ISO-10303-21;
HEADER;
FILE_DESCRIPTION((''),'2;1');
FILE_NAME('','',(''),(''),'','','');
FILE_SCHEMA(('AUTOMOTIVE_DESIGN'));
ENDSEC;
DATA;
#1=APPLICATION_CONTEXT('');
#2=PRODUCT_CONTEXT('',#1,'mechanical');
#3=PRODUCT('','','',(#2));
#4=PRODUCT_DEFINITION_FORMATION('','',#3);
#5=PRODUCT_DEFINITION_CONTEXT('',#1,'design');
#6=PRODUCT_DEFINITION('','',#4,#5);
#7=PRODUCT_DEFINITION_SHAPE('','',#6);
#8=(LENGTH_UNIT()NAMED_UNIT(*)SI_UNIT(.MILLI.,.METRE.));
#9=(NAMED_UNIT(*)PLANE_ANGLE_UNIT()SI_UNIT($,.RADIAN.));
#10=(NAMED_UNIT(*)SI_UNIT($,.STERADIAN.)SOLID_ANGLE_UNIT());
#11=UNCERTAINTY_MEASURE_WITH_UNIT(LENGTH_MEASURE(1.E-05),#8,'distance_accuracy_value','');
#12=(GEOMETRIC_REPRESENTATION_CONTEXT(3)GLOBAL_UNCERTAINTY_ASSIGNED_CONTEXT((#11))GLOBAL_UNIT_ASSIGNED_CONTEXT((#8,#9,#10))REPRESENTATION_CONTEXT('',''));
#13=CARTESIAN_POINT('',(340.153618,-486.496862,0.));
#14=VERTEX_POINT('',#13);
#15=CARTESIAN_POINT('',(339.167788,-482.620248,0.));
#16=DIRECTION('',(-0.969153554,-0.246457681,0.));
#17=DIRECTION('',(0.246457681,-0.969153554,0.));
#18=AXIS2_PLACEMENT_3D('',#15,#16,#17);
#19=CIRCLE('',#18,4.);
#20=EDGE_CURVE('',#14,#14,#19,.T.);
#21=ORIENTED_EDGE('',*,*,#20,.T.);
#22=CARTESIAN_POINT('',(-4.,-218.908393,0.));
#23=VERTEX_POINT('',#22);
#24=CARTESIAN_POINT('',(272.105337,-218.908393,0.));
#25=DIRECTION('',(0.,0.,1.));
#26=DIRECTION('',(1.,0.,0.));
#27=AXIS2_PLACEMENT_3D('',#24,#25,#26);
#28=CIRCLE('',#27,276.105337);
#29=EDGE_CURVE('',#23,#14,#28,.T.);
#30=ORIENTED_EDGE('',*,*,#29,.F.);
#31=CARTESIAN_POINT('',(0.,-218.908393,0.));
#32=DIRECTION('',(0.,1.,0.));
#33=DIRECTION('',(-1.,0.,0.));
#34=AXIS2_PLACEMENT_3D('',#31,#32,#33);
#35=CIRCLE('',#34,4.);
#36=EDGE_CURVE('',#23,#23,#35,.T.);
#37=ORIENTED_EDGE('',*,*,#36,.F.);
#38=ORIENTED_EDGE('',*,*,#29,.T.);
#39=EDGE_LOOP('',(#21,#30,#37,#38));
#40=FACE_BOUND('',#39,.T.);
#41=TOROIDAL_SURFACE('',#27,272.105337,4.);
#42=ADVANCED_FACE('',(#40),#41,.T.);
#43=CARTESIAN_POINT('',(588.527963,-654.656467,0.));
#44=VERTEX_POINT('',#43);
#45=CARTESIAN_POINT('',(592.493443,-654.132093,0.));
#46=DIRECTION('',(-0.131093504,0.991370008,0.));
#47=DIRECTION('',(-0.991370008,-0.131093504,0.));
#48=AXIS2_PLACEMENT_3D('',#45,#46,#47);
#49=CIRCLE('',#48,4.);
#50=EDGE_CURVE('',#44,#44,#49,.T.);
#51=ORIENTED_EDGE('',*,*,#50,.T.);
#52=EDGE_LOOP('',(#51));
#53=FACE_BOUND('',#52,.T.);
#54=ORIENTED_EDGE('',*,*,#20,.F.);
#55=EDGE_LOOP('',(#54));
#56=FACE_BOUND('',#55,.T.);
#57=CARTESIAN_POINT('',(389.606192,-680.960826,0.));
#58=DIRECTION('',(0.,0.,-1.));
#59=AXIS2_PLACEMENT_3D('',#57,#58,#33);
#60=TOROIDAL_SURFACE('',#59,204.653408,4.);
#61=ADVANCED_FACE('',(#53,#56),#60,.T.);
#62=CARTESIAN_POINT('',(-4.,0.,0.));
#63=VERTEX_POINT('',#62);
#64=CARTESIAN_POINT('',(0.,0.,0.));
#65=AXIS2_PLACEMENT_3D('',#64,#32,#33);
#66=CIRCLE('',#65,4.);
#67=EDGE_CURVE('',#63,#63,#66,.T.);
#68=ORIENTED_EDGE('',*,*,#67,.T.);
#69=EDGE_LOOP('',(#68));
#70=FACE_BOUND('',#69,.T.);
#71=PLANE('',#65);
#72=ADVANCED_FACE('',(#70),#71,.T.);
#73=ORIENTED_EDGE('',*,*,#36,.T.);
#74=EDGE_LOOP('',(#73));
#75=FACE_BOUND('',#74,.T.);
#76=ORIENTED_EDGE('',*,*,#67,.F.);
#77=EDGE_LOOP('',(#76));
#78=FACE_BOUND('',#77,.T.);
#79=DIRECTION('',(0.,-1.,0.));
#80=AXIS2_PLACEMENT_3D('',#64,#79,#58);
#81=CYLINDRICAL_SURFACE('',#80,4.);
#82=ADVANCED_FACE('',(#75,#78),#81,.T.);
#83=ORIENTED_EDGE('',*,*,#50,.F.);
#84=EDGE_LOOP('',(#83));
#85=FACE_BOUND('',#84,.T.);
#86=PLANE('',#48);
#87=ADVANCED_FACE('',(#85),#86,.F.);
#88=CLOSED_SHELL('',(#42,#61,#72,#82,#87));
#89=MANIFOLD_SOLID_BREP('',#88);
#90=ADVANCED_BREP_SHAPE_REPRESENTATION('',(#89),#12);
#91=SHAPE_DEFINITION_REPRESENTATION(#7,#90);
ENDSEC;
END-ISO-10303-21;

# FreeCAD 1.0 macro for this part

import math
import FreeCAD as App
import Part
import Sketcher

V = App.Vector
Q = App.Units.Quantity

doc = App.newDocument("Part")
body = doc.addObject("PartDesign::Body", "Body")

# Sketch on XZ plane
sketch1 = body.newObject("Sketcher::SketchObject", "Sketch")
sketch1.AttachmentSupport = (doc.getObject("XZ_Plane"), [""])
sketch1.MapMode = "FlatFace"
sketch1.addGeometry(Part.Circle(V(0, 0, 0), V(0, 0, 1), 4), False)
sketch1.addConstraint([
    Sketcher.Constraint("Coincident", 0, 3, -1, 1),
    Sketcher.Constraint("Diameter", 0, Q("8 mm")),
])

# Sketch on XY plane
sketch2 = body.newObject("Sketcher::SketchObject", "Sketch001")
sketch2.AttachmentSupport = (doc.getObject("XY_Plane"), [""])
sketch2.MapMode = "FlatFace"
sketch2.addGeometry([
    Part.LineSegment(V(0, 0, 0), V(0, -219, 0)),
    Part.ArcOfCircle(Part.Circle(V(272, -219, 0), V(0, 0, 1), 272), math.radians(180), math.radians(284)),
    Part.ArcOfCircle(Part.Circle(V(390, -681, 0), V(0, 0, 1), 205), math.radians(8), math.radians(104)),
], False)
sketch2.addConstraint([
    Sketcher.Constraint("Tangent", 0, 2, 1, 1),
    Sketcher.Constraint("Tangent", 1, 2, 2, 2),
    Sketcher.Constraint("Vertical", 0),
    Sketcher.Constraint("Coincident", 0, 1, -1, 1),
    Sketcher.Constraint("Radius", 1, Q("272.105337 mm")),
    Sketcher.Constraint("Radius", 2, Q("204.653408 mm")),
    Sketcher.Constraint("DistanceY", 2, 1, 1, 3, Q("435.2237 mm")),
    Sketcher.Constraint("DistanceY", 0, 2, 0, 1, Q("218.908393 mm")),
    Sketcher.Constraint("DistanceX", -1, 1, 2, 3, Q("389.606192 mm")),
])
doc.recompute()

additivepipe = body.newObject("PartDesign::AdditivePipe", "AdditivePipe")
additivepipe.Profile = sketch1
additivepipe.Spine = (sketch2, ["Edge1", "Edge2", "Edge3"])

doc.recompute()
